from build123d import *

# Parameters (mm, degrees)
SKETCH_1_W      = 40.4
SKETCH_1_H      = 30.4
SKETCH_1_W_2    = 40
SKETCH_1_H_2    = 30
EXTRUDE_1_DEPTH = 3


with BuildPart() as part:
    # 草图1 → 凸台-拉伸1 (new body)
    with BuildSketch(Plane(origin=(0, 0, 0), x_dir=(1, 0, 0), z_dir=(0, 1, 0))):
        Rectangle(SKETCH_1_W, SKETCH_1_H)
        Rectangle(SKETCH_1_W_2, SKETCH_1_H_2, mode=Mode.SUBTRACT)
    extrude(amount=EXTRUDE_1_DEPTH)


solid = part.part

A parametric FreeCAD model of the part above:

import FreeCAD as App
import Part
import Sketcher
from FreeCAD import Vector


def add_polygon(sketch, points):
    """Adds a closed chain of lines whose ends are joined by coincident constraints."""
    first, n = sketch.GeometryCount, len(points)
    for a, b in zip(points, points[1:] + points[:1]):
        sketch.addGeometry(Part.LineSegment(App.Vector(*a, 0), App.Vector(*b, 0)), False)
    for i in range(n):
        sketch.addConstraint(Sketcher.Constraint("Coincident", first + i, 2, first + (i + 1) % n, 1))

doc = App.newDocument("Part")
body = doc.addObject("PartDesign::Body", "Body")

sketch1 = body.newObject("Sketcher::SketchObject", "Sketch")
sketch1.AttachmentSupport = (doc.getObject("XZ_Plane"), [""])
sketch1.MapMode = "FlatFace"
add_polygon(sketch1, [(-20, -15), (-20, 15), (20, 15), (20, -15)])
add_polygon(sketch1, [(20, 15), (-20, 15), (-20, -15), (20, -15)])
sketch1.addConstraint([
    Sketcher.Constraint("Vertical", 0),
    Sketcher.Constraint("Horizontal", 1),
    Sketcher.Constraint("Vertical", 2),
    Sketcher.Constraint("Horizontal", 3),
    Sketcher.Constraint("Horizontal", 4),
    Sketcher.Constraint("Vertical", 5),
    Sketcher.Constraint("Horizontal", 6),
    Sketcher.Constraint("Vertical", 7),
    Sketcher.Constraint("Symmetric", 0, 2, 2, 2, -1, 1),
    Sketcher.Constraint("Symmetric", 4, 2, 6, 2, -1, 1),
    Sketcher.Constraint("DistanceX", 4, 2, 4, 1, 40.0),
    Sketcher.Constraint("DistanceY", 5, 2, 5, 1, 30.0),
    Sketcher.Constraint("DistanceX", 1, 1, 1, 2, 40.4),
    Sketcher.Constraint("DistanceY", 0, 1, 0, 2, 30.4),
])
pad1 = body.newObject("PartDesign::Pad", "Pad")
pad1.Profile = sketch1
pad1.Length = 3
pad1.Reversed = True

doc.recompute()
